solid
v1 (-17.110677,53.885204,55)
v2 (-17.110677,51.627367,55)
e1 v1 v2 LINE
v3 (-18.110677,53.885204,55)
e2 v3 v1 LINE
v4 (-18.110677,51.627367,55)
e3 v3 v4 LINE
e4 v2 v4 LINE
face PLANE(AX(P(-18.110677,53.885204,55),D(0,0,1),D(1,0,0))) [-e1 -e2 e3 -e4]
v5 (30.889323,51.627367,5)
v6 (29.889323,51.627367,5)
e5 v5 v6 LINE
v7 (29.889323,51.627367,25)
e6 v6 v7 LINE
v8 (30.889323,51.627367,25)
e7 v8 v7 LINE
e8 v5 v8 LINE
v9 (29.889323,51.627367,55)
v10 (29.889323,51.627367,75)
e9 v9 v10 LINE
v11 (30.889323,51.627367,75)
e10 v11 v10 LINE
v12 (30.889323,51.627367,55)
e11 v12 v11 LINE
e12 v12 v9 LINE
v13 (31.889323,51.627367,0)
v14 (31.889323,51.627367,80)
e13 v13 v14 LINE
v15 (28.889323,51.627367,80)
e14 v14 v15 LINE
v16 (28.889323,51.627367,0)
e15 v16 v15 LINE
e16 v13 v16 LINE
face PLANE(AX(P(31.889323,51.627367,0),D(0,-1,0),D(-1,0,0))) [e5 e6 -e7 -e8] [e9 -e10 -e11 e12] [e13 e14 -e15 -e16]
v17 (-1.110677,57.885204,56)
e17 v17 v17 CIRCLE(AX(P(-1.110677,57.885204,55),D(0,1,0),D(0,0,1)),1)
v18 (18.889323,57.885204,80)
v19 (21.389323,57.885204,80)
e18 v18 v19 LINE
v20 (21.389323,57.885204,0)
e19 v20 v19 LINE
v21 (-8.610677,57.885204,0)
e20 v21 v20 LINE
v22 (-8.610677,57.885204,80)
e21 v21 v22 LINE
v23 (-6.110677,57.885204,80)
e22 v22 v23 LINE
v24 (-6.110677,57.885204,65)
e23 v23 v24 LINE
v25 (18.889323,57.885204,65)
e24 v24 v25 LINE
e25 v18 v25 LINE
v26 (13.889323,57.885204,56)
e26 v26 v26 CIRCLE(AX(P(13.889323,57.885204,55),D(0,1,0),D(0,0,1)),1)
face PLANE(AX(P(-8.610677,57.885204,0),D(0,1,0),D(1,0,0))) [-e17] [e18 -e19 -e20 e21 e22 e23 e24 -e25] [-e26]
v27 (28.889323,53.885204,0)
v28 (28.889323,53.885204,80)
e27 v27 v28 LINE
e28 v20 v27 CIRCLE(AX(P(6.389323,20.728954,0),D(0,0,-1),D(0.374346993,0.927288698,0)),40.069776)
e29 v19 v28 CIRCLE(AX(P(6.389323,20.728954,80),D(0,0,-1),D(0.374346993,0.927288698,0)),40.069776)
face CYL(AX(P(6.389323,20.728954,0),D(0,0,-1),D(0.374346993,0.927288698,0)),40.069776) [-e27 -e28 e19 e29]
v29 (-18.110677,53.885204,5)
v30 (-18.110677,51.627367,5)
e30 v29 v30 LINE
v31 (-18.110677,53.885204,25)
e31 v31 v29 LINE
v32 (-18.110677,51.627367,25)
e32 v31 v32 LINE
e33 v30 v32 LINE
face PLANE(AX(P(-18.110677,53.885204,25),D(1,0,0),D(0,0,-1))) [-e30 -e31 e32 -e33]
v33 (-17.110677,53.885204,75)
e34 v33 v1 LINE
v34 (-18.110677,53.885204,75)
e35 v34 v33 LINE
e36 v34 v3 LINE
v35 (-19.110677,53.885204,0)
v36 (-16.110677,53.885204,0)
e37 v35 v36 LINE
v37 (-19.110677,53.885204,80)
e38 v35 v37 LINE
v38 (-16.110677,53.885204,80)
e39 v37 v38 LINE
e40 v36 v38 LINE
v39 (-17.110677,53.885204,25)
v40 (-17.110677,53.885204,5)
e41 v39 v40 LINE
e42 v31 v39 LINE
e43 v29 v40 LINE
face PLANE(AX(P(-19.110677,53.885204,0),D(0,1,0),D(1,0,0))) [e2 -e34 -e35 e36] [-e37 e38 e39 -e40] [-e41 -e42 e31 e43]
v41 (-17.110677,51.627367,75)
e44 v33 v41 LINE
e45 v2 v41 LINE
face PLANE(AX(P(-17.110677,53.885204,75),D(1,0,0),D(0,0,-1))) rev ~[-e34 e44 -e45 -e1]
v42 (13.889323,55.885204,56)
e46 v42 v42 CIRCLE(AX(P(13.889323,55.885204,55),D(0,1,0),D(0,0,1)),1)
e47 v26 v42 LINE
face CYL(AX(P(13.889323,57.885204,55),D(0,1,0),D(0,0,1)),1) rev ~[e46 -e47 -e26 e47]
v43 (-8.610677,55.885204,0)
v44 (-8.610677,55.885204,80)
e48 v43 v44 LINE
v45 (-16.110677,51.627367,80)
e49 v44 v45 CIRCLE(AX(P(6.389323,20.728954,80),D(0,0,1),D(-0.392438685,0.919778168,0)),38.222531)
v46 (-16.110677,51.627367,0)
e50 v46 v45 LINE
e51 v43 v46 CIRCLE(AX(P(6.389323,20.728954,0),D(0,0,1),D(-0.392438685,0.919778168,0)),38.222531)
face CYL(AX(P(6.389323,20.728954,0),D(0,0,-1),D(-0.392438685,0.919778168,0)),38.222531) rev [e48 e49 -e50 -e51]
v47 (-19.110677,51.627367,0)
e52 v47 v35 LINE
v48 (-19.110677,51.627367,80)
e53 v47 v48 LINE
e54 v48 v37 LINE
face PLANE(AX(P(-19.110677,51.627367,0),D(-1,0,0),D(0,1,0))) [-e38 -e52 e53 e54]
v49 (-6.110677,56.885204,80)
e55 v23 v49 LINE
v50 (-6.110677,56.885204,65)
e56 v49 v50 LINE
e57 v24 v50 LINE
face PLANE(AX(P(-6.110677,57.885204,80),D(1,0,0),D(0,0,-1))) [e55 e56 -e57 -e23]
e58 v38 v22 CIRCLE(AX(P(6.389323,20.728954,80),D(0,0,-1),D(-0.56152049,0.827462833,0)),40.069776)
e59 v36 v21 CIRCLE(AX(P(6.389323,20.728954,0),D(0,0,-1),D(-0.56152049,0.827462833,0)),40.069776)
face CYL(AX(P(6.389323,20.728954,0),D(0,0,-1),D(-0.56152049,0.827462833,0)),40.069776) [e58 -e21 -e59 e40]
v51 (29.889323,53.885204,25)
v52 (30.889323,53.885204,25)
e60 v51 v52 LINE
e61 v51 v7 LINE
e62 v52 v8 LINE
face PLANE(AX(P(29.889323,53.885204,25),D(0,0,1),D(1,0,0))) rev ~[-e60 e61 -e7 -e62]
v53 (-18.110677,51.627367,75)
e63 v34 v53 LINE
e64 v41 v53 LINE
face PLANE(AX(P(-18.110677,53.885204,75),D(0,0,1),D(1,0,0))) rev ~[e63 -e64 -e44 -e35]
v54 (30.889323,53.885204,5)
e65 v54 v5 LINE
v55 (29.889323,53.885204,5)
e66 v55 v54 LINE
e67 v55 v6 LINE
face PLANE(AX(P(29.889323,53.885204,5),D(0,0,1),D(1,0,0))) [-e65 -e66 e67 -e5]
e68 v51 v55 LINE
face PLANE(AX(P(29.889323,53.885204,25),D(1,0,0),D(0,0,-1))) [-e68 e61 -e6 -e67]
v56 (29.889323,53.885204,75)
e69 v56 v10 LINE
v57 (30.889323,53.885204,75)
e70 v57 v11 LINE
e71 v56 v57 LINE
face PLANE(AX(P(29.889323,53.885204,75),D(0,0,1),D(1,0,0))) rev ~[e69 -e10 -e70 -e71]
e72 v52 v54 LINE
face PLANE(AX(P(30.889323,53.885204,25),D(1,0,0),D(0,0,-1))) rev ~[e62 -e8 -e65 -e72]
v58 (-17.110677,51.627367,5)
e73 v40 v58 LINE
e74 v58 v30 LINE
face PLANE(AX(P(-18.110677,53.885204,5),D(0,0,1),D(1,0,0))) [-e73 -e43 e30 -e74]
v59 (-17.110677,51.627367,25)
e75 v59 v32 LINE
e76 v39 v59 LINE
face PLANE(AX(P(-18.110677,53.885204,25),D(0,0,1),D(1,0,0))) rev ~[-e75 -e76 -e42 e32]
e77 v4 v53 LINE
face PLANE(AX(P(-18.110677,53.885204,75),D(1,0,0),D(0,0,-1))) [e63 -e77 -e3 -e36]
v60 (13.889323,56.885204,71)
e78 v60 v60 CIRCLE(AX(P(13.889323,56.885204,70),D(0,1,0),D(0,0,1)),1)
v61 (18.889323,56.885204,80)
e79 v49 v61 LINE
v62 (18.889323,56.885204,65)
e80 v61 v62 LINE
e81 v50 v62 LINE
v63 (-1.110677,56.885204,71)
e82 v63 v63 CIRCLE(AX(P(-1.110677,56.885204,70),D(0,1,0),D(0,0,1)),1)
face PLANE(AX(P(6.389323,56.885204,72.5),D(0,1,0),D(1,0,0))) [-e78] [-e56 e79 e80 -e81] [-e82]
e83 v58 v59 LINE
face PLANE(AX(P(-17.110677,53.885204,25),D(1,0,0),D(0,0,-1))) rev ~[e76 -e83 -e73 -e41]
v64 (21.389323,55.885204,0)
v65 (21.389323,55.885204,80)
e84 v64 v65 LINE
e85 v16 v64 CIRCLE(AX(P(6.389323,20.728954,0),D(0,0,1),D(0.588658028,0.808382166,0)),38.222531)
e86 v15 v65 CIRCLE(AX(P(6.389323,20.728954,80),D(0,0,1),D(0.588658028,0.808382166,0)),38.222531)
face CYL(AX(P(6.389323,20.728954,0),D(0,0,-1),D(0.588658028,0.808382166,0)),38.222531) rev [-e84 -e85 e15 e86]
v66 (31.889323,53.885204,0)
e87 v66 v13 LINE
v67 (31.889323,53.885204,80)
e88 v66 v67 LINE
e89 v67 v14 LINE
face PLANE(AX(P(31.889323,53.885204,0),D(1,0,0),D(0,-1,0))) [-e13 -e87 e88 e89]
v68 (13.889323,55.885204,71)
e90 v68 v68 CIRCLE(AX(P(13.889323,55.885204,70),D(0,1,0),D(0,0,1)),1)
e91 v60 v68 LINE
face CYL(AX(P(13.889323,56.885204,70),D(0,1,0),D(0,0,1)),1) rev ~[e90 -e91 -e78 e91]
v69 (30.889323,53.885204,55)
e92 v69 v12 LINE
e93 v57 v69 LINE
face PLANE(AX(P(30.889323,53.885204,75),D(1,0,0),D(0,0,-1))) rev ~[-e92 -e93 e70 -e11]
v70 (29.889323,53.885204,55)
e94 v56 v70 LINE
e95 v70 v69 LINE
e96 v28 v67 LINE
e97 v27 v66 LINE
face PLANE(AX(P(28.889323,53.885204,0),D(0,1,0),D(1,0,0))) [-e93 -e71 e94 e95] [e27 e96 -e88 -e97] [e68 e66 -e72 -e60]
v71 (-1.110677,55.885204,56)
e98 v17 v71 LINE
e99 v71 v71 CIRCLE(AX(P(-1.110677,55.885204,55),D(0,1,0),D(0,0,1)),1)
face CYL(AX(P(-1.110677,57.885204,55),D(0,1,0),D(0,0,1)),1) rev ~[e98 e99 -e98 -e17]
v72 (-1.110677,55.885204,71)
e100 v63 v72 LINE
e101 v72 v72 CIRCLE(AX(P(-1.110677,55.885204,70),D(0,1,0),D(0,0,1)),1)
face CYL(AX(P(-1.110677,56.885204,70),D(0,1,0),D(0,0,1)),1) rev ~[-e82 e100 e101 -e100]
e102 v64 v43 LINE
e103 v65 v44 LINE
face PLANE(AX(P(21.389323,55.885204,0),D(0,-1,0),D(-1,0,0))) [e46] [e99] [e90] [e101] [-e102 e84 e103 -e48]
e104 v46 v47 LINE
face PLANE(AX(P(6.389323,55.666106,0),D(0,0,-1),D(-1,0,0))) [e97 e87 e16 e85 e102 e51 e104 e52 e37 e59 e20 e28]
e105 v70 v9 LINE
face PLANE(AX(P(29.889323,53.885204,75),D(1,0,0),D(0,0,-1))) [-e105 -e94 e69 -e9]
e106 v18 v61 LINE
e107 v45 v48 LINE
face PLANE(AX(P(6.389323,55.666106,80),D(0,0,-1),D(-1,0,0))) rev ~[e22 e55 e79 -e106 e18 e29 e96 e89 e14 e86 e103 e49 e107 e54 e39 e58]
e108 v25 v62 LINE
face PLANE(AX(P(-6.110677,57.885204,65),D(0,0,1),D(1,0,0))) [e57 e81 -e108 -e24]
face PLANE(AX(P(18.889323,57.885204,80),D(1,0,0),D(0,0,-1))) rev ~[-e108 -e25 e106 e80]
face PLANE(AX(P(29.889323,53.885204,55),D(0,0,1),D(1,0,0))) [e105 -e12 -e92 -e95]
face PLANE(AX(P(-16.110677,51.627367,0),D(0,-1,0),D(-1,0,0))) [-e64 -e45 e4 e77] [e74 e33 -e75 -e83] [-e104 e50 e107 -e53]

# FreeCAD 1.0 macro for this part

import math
import FreeCAD as App
import Part
import Sketcher
from FreeCAD import Vector


def add_polygon(sketch, points):
    """Adds a closed chain of lines whose ends are joined by coincident constraints."""
    first, n = sketch.GeometryCount, len(points)
    for a, b in zip(points, points[1:] + points[:1]):
        sketch.addGeometry(Part.LineSegment(App.Vector(*a, 0), App.Vector(*b, 0)), False)
    for i in range(n):
        sketch.addConstraint(Sketcher.Constraint("Coincident", first + i, 2, first + (i + 1) % n, 1))

doc = App.newDocument("Part")
body = doc.addObject("PartDesign::Body", "Body")

# Sketch on XY plane
sketch1 = body.newObject("Sketcher::SketchObject", "Sketch")
sketch1.AttachmentSupport = (doc.getObject("XY_Plane"), [""])
sketch1.MapMode = "FlatFace"
sketch1.addGeometry(Part.LineSegment(Vector(-16.1, 53.9, 0), Vector(-19.1, 53.9, 0)), False)
sketch1.addGeometry(Part.LineSegment(Vector(-19.1, 53.9, 0), Vector(-19.1, 51.6, 0)), False)
sketch1.addGeometry(Part.LineSegment(Vector(-19.1, 51.6, 0), Vector(-16.1, 51.6, 0)), False)
sketch1.addGeometry(Part.ArcOfCircle(Part.Circle(Vector(6.4, 20.7, 0), Vector(0, 0, 1), 38.2), math.radians(113.11), math.radians(126.06)), False)
sketch1.addGeometry(Part.LineSegment(Vector(-8.6, 55.9, 0), Vector(21.4, 55.9, 0)), False)
sketch1.addGeometry(Part.ArcOfCircle(Part.Circle(Vector(6.4, 20.7, 0), Vector(0, 0, 1), 38.2), math.radians(53.94), math.radians(66.89)), False)
sketch1.addGeometry(Part.LineSegment(Vector(28.9, 51.6, 0), Vector(31.9, 51.6, 0)), False)
sketch1.addGeometry(Part.LineSegment(Vector(31.9, 51.6, 0), Vector(31.9, 53.9, 0)), False)
sketch1.addGeometry(Part.LineSegment(Vector(31.9, 53.9, 0), Vector(28.9, 53.9, 0)), False)
sketch1.addGeometry(Part.ArcOfCircle(Part.Circle(Vector(6.4, 20.7, 0), Vector(0, 0, 1), 40.1), math.radians(55.84), math.radians(68.02)), False)
sketch1.addGeometry(Part.LineSegment(Vector(21.4, 57.9, 0), Vector(-8.6, 57.9, 0)), False)
sketch1.addGeometry(Part.ArcOfCircle(Part.Circle(Vector(6.4, 20.7, 0), Vector(0, 0, 1), 40.1), math.radians(111.98), math.radians(124.16)), False)
sketch1.addConstraint(Sketcher.Constraint("Coincident", 0, 2, 1, 1))
sketch1.addConstraint(Sketcher.Constraint("Coincident", 1, 2, 2, 1))
sketch1.addConstraint(Sketcher.Constraint("Coincident", 2, 2, 3, 2))
sketch1.addConstraint(Sketcher.Constraint("Coincident", 3, 1, 4, 1))
sketch1.addConstraint(Sketcher.Constraint("Coincident", 4, 2, 5, 2))
sketch1.addConstraint(Sketcher.Constraint("Coincident", 5, 1, 6, 1))
sketch1.addConstraint(Sketcher.Constraint("Coincident", 6, 2, 7, 1))
sketch1.addConstraint(Sketcher.Constraint("Coincident", 7, 2, 8, 1))
sketch1.addConstraint(Sketcher.Constraint("Coincident", 8, 2, 9, 1))
sketch1.addConstraint(Sketcher.Constraint("Coincident", 9, 2, 10, 1))
sketch1.addConstraint(Sketcher.Constraint("Coincident", 10, 2, 11, 1))
sketch1.addConstraint(Sketcher.Constraint("Coincident", 11, 2, 0, 1))
sketch1.addConstraint(Sketcher.Constraint("Horizontal", 0))
sketch1.addConstraint(Sketcher.Constraint("Vertical", 1))
sketch1.addConstraint(Sketcher.Constraint("Horizontal", 2))
sketch1.addConstraint(Sketcher.Constraint("Horizontal", 4))
sketch1.addConstraint(Sketcher.Constraint("Horizontal", 6))
sketch1.addConstraint(Sketcher.Constraint("Vertical", 7))
sketch1.addConstraint(Sketcher.Constraint("Horizontal", 8))
sketch1.addConstraint(Sketcher.Constraint("Horizontal", 10))
sketch1.addConstraint(Sketcher.Constraint("Coincident", 5, 3, 3, 3))
sketch1.addConstraint(Sketcher.Constraint("Coincident", 9, 3, 3, 3))
sketch1.addConstraint(Sketcher.Constraint("Coincident", 11, 3, 3, 3))
sketch1.addConstraint(Sketcher.Constraint("Equal", 3, 5))
sketch1.addConstraint(Sketcher.Constraint("Equal", 9, 11))
sketch1.addConstraint(Sketcher.Constraint("Horizontal", 2, 2, 5, 1))
sketch1.addConstraint(Sketcher.Constraint("Horizontal", 0, 2, 7, 2))
sketch1.addConstraint(Sketcher.Constraint("Vertical", 5, 1, 8, 2))
sketch1.addConstraint(Sketcher.Constraint("Vertical", 4, 2, 9, 2))
sketch1.addConstraint(Sketcher.Constraint("Equal", 2, 6))
sketch1.addConstraint(Sketcher.Constraint("DistanceX", 0, 2, 0, 1, 3.0))
sketch1.addConstraint(Sketcher.Constraint("DistanceX", 4, 1, 4, 2, 30.0))
sketch1.addConstraint(Sketcher.Constraint("DistanceY", 0, 2, 3, 1, 2.0))
sketch1.addConstraint(Sketcher.Constraint("DistanceY", 4, 2, 9, 2, 2.0))
sketch1.addConstraint(Sketcher.Constraint("DistanceX", 0, 2, 11, 3, 25.5))
sketch1.addConstraint(Sketcher.Constraint("DistanceX", -1, 1, 3, 3, 6.389323))
sketch1.addConstraint(Sketcher.Constraint("DistanceY", -1, 1, 3, 3, 20.728954))
pad1 = body.newObject("PartDesign::Pad", "Pad")
pad1.Profile = sketch1
pad1.Length = 80

# Sketch on XZ plane
sketch2 = body.newObject("Sketcher::SketchObject", "Sketch001")
sketch2.AttachmentSupport = (doc.getObject("XZ_Plane"), [""])
sketch2.MapMode = "FlatFace"
sketch2.AttachmentOffset = App.Placement(Vector(0, 0, -57.885204), App.Rotation())
add_polygon(sketch2, [(-6, 65), (-6, 80), (19, 80), (19, 65)])  # lines 0-3
sketch2.addConstraint(Sketcher.Constraint("Vertical", 0))
sketch2.addConstraint(Sketcher.Constraint("Horizontal", 1))
sketch2.addConstraint(Sketcher.Constraint("Vertical", 2))
sketch2.addConstraint(Sketcher.Constraint("Horizontal", 3))
sketch2.addConstraint(Sketcher.Constraint("DistanceX", 1, 1, 1, 2, 25.0))
sketch2.addConstraint(Sketcher.Constraint("DistanceY", 0, 1, 0, 2, 15.0))
sketch2.addConstraint(Sketcher.Constraint("DistanceY", -1, 1, 0, 2, 80.0))
sketch2.addConstraint(Sketcher.Constraint("DistanceX", 0, 2, -1, 1, 6.110677))
pocket1 = body.newObject("PartDesign::Pocket", "Pocket")
pocket1.Profile = sketch2
pocket1.Length = 1
pocket1.Reversed = True

# Sketch on XZ plane
sketch3 = body.newObject("Sketcher::SketchObject", "Sketch002")
sketch3.AttachmentSupport = (doc.getObject("XZ_Plane"), [""])
sketch3.MapMode = "FlatFace"
sketch3.AttachmentOffset = App.Placement(Vector(0, 0, -56.885204), App.Rotation())
sketch3.addGeometry(Part.Circle(Vector(-1.1, 70, 0), Vector(0, 0, 1), 1), False)
sketch3.addGeometry(Part.Circle(Vector(13.9, 70, 0), Vector(0, 0, 1), 1), False)
sketch3.addConstraint(Sketcher.Constraint("Equal", 0, 1))
sketch3.addConstraint(Sketcher.Constraint("Horizontal", 0, 3, 1, 3))
sketch3.addConstraint(Sketcher.Constraint("Diameter", 0, 2.0))
sketch3.addConstraint(Sketcher.Constraint("DistanceY", -1, 1, 0, 3, 70.0))
sketch3.addConstraint(Sketcher.Constraint("DistanceX", 0, 3, 1, 3, 15.0))
sketch3.addConstraint(Sketcher.Constraint("DistanceX", 0, 3, -1, 1, 1.110677))
pocket2 = body.newObject("PartDesign::Pocket", "Pocket001")
pocket2.Profile = sketch3
pocket2.Length = 1
pocket2.Reversed = True

# Sketch on XZ plane
sketch4 = body.newObject("Sketcher::SketchObject", "Sketch003")
sketch4.AttachmentSupport = (doc.getObject("XZ_Plane"), [""])
sketch4.MapMode = "FlatFace"
sketch4.AttachmentOffset = App.Placement(Vector(0, 0, -53.885204), App.Rotation())
add_polygon(sketch4, [(-18.1, 5), (-18.1, 25), (-17.1, 25), (-17.1, 5)])  # lines 0-3
add_polygon(sketch4, [(-18.1, 55), (-18.1, 75), (-17.1, 75), (-17.1, 55)])  # lines 4-7
add_polygon(sketch4, [(29.9, 5), (29.9, 25), (30.9, 25), (30.9, 5)])  # lines 8-11
add_polygon(sketch4, [(29.9, 55), (29.9, 75), (30.9, 75), (30.9, 55)])  # lines 12-15
sketch4.addConstraint(Sketcher.Constraint("Vertical", 0))
sketch4.addConstraint(Sketcher.Constraint("Horizontal", 1))
sketch4.addConstraint(Sketcher.Constraint("Vertical", 2))
sketch4.addConstraint(Sketcher.Constraint("Horizontal", 3))
sketch4.addConstraint(Sketcher.Constraint("Vertical", 4))
sketch4.addConstraint(Sketcher.Constraint("Horizontal", 5))
sketch4.addConstraint(Sketcher.Constraint("Vertical", 6))
sketch4.addConstraint(Sketcher.Constraint("Horizontal", 7))
sketch4.addConstraint(Sketcher.Constraint("Vertical", 8))
sketch4.addConstraint(Sketcher.Constraint("Horizontal", 9))
sketch4.addConstraint(Sketcher.Constraint("Vertical", 10))
sketch4.addConstraint(Sketcher.Constraint("Horizontal", 11))
sketch4.addConstraint(Sketcher.Constraint("Vertical", 12))
sketch4.addConstraint(Sketcher.Constraint("Horizontal", 13))
sketch4.addConstraint(Sketcher.Constraint("Vertical", 14))
sketch4.addConstraint(Sketcher.Constraint("Horizontal", 15))
sketch4.addConstraint(Sketcher.Constraint("Horizontal", 1, 2, 8, 2))
sketch4.addConstraint(Sketcher.Constraint("Horizontal", 3, 2, 10, 2))
sketch4.addConstraint(Sketcher.Constraint("Horizontal", 5, 2, 12, 2))
sketch4.addConstraint(Sketcher.Constraint("Horizontal", 7, 2, 14, 2))
sketch4.addConstraint(Sketcher.Constraint("Vertical", 3, 2, 4, 2))
sketch4.addConstraint(Sketcher.Constraint("Vertical", 2, 2, 5, 2))
sketch4.addConstraint(Sketcher.Constraint("Vertical", 11, 2, 12, 2))
sketch4.addConstraint(Sketcher.Constraint("Vertical", 10, 2, 13, 2))
sketch4.addConstraint(Sketcher.Constraint("Equal", 7, 9))
sketch4.addConstraint(Sketcher.Constraint("Equal", 2, 4))
sketch4.addConstraint(Sketcher.Constraint("DistanceX", 1, 1, 1, 2, 1.0))
sketch4.addConstraint(Sketcher.Constraint("DistanceY", 0, 1, 0, 2, 20.0))
sketch4.addConstraint(Sketcher.Constraint("DistanceY", -1, 1, 0, 2, 25.0))
sketch4.addConstraint(Sketcher.Constraint("DistanceY", -1, 1, 4, 2, 75.0))
sketch4.addConstraint(Sketcher.Constraint("DistanceX", 1, 2, 8, 2, 47.0))
sketch4.addConstraint(Sketcher.Constraint("DistanceX", 0, 2, -1, 1, 18.110677))
pocket3 = body.newObject("PartDesign::Pocket", "Pocket002")
pocket3.Profile = sketch4
pocket3.Length = 4.69
pocket3.Reversed = True

# Sketch on XZ plane
sketch5 = body.newObject("Sketcher::SketchObject", "Sketch004")
sketch5.AttachmentSupport = (doc.getObject("XZ_Plane"), [""])
sketch5.MapMode = "FlatFace"
sketch5.AttachmentOffset = App.Placement(Vector(0, 0, -57.885204), App.Rotation())
sketch5.addGeometry(Part.Circle(Vector(-1.1, 55, 0), Vector(0, 0, 1), 1), False)
sketch5.addGeometry(Part.Circle(Vector(13.9, 55, 0), Vector(0, 0, 1), 1), False)
sketch5.addConstraint(Sketcher.Constraint("Equal", 0, 1))
sketch5.addConstraint(Sketcher.Constraint("Horizontal", 0, 3, 1, 3))
sketch5.addConstraint(Sketcher.Constraint("Diameter", 0, 2.0))
sketch5.addConstraint(Sketcher.Constraint("DistanceY", -1, 1, 0, 3, 55.0))
sketch5.addConstraint(Sketcher.Constraint("DistanceX", 0, 3, 1, 3, 15.0))
sketch5.addConstraint(Sketcher.Constraint("DistanceX", 0, 3, -1, 1, 1.110677))
pocket4 = body.newObject("PartDesign::Pocket", "Pocket003")
pocket4.Profile = sketch5
pocket4.Length = 4.69
pocket4.Reversed = True

doc.recompute()
